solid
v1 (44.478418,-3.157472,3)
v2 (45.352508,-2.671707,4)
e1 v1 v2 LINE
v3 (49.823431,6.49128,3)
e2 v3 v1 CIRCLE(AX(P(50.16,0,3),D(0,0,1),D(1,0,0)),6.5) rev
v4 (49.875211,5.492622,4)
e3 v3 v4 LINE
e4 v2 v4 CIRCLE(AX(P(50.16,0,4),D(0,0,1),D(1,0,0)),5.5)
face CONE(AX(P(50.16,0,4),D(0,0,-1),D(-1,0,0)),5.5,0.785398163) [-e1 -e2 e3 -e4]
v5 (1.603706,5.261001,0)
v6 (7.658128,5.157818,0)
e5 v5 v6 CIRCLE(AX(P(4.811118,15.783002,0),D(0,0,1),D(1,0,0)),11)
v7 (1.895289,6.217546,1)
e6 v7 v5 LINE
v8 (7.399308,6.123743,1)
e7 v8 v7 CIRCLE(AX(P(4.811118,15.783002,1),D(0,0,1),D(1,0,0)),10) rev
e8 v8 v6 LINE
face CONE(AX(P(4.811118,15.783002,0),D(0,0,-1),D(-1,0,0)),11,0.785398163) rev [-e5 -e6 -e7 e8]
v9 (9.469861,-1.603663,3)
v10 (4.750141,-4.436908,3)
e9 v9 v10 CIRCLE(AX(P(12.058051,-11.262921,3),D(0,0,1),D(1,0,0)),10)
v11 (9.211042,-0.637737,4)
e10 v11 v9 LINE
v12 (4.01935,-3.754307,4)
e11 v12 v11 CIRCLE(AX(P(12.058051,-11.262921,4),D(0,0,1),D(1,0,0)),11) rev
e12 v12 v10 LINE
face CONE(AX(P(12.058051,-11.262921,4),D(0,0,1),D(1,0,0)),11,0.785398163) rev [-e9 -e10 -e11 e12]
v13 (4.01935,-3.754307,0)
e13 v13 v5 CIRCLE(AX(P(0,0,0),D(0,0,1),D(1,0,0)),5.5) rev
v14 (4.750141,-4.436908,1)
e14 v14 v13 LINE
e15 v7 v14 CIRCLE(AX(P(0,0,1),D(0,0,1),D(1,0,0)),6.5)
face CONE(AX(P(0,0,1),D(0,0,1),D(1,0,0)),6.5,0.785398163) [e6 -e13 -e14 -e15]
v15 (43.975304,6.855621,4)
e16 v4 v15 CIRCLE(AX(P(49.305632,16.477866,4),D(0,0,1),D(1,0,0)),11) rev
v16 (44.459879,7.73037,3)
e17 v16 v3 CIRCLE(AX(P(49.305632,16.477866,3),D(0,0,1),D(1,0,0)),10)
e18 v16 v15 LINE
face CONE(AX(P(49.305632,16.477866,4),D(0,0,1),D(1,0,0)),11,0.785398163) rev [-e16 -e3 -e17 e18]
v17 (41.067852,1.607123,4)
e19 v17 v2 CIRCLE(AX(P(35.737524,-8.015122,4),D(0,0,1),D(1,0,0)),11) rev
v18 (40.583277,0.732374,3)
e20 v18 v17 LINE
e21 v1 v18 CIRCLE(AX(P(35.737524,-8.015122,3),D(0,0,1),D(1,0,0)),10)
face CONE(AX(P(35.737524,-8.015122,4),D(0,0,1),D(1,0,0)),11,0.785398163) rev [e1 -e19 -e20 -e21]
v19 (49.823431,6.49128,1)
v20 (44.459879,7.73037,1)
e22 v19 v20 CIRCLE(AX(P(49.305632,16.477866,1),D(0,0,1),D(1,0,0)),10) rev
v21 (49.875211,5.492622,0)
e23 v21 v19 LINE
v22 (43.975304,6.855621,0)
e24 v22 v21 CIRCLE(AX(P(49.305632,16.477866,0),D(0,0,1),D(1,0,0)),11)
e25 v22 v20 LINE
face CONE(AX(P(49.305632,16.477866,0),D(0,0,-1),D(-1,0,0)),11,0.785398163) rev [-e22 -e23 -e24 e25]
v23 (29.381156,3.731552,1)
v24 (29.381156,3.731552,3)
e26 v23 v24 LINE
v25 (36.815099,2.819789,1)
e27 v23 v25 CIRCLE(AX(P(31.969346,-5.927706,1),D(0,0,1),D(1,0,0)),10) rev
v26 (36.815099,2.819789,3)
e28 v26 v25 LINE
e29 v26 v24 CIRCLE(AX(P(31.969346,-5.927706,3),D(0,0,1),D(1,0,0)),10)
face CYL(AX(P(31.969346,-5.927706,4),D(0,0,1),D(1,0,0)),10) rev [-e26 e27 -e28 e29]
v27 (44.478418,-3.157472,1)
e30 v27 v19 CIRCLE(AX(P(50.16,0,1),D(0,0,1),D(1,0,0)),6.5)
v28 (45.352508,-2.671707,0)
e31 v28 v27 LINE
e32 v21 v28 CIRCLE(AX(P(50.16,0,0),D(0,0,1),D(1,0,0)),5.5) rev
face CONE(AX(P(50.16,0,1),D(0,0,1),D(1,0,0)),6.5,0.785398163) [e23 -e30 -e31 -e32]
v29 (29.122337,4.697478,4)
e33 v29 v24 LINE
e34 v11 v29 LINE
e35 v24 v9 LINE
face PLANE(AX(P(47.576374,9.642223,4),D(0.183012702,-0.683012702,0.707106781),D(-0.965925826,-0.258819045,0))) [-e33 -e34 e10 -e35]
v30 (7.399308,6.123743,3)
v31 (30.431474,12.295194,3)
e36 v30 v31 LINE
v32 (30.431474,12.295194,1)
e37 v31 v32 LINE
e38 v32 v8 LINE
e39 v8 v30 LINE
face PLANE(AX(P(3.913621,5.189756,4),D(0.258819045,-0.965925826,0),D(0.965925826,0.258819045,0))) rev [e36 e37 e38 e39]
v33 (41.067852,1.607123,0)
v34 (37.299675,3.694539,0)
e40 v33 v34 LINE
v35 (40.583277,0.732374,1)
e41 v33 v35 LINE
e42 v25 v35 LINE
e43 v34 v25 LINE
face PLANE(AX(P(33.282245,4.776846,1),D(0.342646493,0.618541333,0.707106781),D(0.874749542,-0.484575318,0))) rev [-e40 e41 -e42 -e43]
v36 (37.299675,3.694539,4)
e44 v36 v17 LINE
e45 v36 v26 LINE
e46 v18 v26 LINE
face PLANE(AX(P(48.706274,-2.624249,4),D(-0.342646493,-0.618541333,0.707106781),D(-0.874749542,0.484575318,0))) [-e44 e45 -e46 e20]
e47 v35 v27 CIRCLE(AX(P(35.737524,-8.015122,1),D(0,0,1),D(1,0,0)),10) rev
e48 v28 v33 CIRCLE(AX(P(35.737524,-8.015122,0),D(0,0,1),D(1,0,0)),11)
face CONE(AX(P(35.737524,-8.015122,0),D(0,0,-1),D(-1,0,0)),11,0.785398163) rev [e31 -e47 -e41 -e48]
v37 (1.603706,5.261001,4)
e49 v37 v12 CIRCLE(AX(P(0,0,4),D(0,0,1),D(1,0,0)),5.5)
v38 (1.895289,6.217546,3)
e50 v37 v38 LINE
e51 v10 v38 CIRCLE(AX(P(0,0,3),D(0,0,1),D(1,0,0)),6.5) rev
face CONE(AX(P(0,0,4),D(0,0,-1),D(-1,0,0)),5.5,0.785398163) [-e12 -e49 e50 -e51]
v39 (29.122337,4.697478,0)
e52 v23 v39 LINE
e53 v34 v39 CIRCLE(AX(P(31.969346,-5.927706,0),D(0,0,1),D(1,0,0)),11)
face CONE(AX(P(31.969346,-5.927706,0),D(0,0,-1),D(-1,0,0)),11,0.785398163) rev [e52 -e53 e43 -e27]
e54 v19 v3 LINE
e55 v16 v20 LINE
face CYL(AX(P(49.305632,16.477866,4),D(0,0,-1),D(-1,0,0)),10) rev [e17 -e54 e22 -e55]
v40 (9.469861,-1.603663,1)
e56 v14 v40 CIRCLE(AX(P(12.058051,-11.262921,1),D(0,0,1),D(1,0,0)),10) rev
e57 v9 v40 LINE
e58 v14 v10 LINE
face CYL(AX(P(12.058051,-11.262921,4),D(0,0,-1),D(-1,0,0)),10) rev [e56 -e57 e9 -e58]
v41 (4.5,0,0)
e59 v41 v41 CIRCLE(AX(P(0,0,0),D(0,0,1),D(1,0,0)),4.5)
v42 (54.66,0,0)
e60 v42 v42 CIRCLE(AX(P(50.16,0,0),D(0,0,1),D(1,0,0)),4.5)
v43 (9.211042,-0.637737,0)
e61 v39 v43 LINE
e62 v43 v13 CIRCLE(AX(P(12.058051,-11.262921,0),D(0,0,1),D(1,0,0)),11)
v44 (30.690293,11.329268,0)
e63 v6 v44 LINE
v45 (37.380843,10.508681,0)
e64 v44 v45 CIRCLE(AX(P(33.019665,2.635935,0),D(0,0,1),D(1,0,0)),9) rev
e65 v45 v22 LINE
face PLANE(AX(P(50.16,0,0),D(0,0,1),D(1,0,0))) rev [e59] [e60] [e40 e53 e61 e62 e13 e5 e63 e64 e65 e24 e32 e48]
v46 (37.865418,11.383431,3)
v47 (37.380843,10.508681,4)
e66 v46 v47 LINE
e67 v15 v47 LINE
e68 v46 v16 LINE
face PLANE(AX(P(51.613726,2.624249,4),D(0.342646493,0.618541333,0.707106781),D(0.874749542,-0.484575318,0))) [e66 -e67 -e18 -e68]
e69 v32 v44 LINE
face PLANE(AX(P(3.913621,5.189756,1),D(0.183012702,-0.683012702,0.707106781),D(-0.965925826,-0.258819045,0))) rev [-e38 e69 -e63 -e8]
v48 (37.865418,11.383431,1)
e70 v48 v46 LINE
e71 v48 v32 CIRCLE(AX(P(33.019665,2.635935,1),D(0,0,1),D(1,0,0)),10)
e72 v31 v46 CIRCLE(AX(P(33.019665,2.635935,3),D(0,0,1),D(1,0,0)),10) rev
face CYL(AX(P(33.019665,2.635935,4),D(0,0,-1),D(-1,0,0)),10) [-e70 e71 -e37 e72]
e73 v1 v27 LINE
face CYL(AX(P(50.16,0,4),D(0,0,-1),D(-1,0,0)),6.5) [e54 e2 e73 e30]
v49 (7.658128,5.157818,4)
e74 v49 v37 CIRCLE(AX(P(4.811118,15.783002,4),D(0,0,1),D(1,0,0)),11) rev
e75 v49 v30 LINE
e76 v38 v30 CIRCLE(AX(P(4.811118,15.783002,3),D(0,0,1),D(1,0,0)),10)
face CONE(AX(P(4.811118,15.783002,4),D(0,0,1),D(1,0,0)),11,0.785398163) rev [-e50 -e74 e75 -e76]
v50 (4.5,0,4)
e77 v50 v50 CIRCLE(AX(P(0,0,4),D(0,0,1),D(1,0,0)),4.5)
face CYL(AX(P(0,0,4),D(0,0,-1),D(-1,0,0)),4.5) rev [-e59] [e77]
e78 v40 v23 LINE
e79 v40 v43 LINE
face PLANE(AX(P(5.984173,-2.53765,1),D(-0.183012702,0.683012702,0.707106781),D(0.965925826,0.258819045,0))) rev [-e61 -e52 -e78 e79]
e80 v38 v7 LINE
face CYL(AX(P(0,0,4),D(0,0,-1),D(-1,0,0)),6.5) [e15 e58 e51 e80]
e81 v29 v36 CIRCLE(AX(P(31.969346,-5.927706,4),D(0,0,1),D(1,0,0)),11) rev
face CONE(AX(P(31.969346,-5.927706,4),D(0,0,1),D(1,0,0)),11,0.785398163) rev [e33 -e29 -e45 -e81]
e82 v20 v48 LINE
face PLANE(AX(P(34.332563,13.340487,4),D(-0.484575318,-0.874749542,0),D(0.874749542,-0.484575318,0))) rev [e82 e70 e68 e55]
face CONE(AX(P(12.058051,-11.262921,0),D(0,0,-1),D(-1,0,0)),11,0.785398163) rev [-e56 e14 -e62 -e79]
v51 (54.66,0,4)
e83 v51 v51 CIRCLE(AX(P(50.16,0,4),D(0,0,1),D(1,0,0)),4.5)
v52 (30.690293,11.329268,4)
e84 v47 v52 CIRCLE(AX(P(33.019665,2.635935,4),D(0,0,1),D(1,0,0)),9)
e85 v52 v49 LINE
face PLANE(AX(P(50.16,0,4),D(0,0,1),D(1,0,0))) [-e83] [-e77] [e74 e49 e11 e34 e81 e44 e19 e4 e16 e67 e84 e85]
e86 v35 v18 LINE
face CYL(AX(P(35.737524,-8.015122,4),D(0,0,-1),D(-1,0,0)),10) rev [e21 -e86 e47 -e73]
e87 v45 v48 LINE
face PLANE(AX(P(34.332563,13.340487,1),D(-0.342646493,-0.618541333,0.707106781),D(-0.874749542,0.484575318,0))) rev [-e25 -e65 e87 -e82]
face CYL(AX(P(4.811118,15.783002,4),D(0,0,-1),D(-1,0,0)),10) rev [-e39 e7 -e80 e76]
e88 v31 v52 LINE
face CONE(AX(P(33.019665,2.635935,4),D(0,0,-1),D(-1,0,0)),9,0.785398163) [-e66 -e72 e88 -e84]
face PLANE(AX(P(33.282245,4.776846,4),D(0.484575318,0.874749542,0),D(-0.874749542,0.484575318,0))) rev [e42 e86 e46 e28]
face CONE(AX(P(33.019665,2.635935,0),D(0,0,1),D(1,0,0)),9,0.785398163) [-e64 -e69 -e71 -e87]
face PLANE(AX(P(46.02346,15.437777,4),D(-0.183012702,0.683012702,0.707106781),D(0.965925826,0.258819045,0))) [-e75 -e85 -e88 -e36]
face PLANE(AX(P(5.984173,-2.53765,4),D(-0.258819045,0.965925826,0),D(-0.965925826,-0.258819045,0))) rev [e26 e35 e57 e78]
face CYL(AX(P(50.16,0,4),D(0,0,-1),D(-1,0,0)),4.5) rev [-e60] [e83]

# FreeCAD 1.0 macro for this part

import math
import FreeCAD as App
import Part
import Sketcher
Q = App.Units.Quantity


def edges_at(feature, points):
    """Names of the edges that pass closest to the given points."""
    edges = feature.Shape.Edges
    near = lambda p: min(range(len(edges)), key=lambda i: edges[i].distToShape(Part.Vertex(*p))[0])
    return sorted({f"Edge{near(p) + 1}" for p in points})

doc = App.newDocument("Part")
body = doc.addObject("PartDesign::Body", "Body")

# Sketch on XY plane
sketch1 = body.newObject("Sketcher::SketchObject", "Sketch")
sketch1.AttachmentSupport = (doc.getObject("XY_Plane"), [""])
sketch1.MapMode = "FlatFace"
sketch1.addGeometry([
    Part.LineSegment(App.Vector(6, -2.5, 0), App.Vector(33.3, 4.8, 0)),  # 0
    Part.LineSegment(App.Vector(33.3, 4.8, 0), App.Vector(43.7, -1, 0)),  # 1
    Part.ArcOfCircle(Part.Circle(App.Vector(50.2, 0, 0), App.Vector(0, 0, 1), 6.5), math.radians(-171), math.radians(113)),  # 2
    Part.LineSegment(App.Vector(47.6, 6, 0), App.Vector(34.3, 13.3, 0)),  # 3
    Part.LineSegment(App.Vector(34.3, 13.3, 0), App.Vector(3.9, 5.2, 0)),  # 4
    Part.ArcOfCircle(Part.Circle(App.Vector(0, 0, 0), App.Vector(0, 0, 1), 6.5), math.radians(53), math.radians(337)),  # 5
    Part.Circle(App.Vector(0, 0, 0), App.Vector(0, 0, 1), 4.5),  # 6
    Part.Circle(App.Vector(50.2, 0, 0), App.Vector(0, 0, 1), 4.5),  # 7
], False)
sketch1.addConstraint([
    Sketcher.Constraint("Coincident", 0, 2, 1, 1),
    Sketcher.Constraint("Coincident", 1, 2, 2, 1),
    Sketcher.Constraint("Coincident", 2, 2, 3, 1),
    Sketcher.Constraint("Coincident", 3, 2, 4, 1),
    Sketcher.Constraint("Coincident", 4, 2, 5, 1),
    Sketcher.Constraint("Coincident", 5, 2, 0, 1),
    Sketcher.Constraint("Coincident", 5, 3, -1, 1),
    Sketcher.Constraint("Coincident", 6, 3, -1, 1),
    Sketcher.Constraint("Coincident", 7, 3, 2, 3),
    Sketcher.Constraint("Equal", 2, 5),
    Sketcher.Constraint("Equal", 6, 7),
    Sketcher.Constraint("PointOnObject", 2, 3, -1),
    Sketcher.Constraint("Parallel", 1, 3),
    Sketcher.Constraint("Parallel", 0, 4),
    Sketcher.Constraint("Diameter", 6, Q("9 mm")),
    Sketcher.Constraint("Radius", 2, Q("6.5 mm")),
    Sketcher.Constraint("Angle", 0, Q("15 deg")),
    Sketcher.Constraint("DistanceX", -1, 1, 2, 3, Q("50.16 mm")),
    Sketcher.Constraint("DistanceX", 0, 2, 2, 2, Q("14.334299 mm")),
    Sketcher.Constraint("Distance", 3, Q("15.186039 mm")),
    Sketcher.Constraint("DistanceX", -1, 1, 1, 2, Q("43.739941 mm")),
    Sketcher.Constraint("DistanceX", -1, 1, 4, 2, Q("3.913621 mm")),
    Sketcher.Constraint("DistanceY", 5, 2, -1, 1, Q("2.53765 mm")),
])
pad1 = body.newObject("PartDesign::Pad", "Pad")
pad1.Profile = sketch1
pad1.Length = 4
doc.recompute()

fillet = body.newObject("PartDesign::Fillet", "Fillet")
fillet.Base = (pad1, edges_at(pad1, [
    (33.282, 4.777, 2),
    (5.984, -2.538, 2),
    (3.914, 5.19, 2),
    (34.333, 13.34, 2),
    (47.617, 5.982, 2),
    (43.74, -1.016, 2),
]))
fillet.Radius = 10
doc.recompute()

chamfer = body.newObject("PartDesign::Chamfer", "Chamfer")
chamfer.Base = (fillet, edges_at(fillet, [
    (38.699, 1.776, 0),
    (38.699, 1.776, 4),
    (19.426, 1.064, 0),
    (19.426, 1.064, 4),
    (18.915, 9.209, 0),
    (18.915, 9.209, 4),
    (-6.279, -1.682, 0),
    (41.163, 9.557, 0),
    (55.846, -3.15, 0),
    (34.237, 12.562, 0),
    (41.163, 9.557, 4),
    (55.846, -3.15, 4),
    (-6.279, -1.682, 4),
    (34.237, 12.562, 4),
    (33.187, 3.998, 0),
    (33.187, 3.998, 4),
    (6.911, -2.689, 0),
    (6.911, -2.689, 4),
    (47.055, 6.734, 0),
    (47.055, 6.734, 4),
    (42.804, -0.939, 0),
    (42.804, -0.939, 4),
    (4.641, 5.784, 0),
    (4.641, 5.784, 4),
]))
chamfer.Size = 1

doc.recompute()
